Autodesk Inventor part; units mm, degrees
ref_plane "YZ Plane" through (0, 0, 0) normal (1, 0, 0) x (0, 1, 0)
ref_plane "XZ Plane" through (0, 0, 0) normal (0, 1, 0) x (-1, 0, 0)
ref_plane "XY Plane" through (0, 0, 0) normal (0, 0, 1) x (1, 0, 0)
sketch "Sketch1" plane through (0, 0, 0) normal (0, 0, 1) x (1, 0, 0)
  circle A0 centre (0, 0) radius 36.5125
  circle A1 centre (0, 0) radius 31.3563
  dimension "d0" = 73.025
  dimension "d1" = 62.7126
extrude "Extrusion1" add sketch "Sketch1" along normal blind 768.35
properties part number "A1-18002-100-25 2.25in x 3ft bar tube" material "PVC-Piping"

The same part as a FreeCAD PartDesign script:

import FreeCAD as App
import Part
import Sketcher

V = App.Vector
Q = App.Units.Quantity

doc = App.newDocument("Part")
params = doc.addObject("Spreadsheet::Sheet", "Params")
for row, (alias, value) in enumerate([
    ("sketch1_diameter", "2.875 in"),
    ("sketch1_diameter2", "2.469 in"),
    ("pad1_length", "30.25 in"),
], start=1):
    params.set(f"A{row}", alias)
    params.set(f"B{row}", "=" + value)
    params.setAlias(f"B{row}", alias)

body = doc.addObject("PartDesign::Body", "Body")

sketch1 = body.newObject("Sketcher::SketchObject", "Sketch")
sketch1.AttachmentSupport = (doc.getObject("XY_Plane"), [""])
sketch1.MapMode = "FlatFace"
sketch1.addGeometry([
    Part.Circle(V(0, 0, 0), V(0, 0, 1), 36.5125),
    Part.Circle(V(0, 0, 0), V(0, 0, 1), 31.3563),
], False)
sketch1.addConstraint([
    Sketcher.Constraint("Coincident", 0, 3, -1, 1),
    Sketcher.Constraint("Coincident", 1, 3, -1, 1),
    Sketcher.Constraint("Diameter", 0, Q("2.875 in")),
    Sketcher.Constraint("Diameter", 1, Q("2.469 in")),
])
sketch1.setExpression("Constraints[2]", "Params.sketch1_diameter")
sketch1.setExpression("Constraints[3]", "Params.sketch1_diameter2")
pad1 = body.newObject("PartDesign::Pad", "Pad")
pad1.Profile = sketch1
pad1.setExpression("Length", "Params.pad1_length")

doc.recompute()
